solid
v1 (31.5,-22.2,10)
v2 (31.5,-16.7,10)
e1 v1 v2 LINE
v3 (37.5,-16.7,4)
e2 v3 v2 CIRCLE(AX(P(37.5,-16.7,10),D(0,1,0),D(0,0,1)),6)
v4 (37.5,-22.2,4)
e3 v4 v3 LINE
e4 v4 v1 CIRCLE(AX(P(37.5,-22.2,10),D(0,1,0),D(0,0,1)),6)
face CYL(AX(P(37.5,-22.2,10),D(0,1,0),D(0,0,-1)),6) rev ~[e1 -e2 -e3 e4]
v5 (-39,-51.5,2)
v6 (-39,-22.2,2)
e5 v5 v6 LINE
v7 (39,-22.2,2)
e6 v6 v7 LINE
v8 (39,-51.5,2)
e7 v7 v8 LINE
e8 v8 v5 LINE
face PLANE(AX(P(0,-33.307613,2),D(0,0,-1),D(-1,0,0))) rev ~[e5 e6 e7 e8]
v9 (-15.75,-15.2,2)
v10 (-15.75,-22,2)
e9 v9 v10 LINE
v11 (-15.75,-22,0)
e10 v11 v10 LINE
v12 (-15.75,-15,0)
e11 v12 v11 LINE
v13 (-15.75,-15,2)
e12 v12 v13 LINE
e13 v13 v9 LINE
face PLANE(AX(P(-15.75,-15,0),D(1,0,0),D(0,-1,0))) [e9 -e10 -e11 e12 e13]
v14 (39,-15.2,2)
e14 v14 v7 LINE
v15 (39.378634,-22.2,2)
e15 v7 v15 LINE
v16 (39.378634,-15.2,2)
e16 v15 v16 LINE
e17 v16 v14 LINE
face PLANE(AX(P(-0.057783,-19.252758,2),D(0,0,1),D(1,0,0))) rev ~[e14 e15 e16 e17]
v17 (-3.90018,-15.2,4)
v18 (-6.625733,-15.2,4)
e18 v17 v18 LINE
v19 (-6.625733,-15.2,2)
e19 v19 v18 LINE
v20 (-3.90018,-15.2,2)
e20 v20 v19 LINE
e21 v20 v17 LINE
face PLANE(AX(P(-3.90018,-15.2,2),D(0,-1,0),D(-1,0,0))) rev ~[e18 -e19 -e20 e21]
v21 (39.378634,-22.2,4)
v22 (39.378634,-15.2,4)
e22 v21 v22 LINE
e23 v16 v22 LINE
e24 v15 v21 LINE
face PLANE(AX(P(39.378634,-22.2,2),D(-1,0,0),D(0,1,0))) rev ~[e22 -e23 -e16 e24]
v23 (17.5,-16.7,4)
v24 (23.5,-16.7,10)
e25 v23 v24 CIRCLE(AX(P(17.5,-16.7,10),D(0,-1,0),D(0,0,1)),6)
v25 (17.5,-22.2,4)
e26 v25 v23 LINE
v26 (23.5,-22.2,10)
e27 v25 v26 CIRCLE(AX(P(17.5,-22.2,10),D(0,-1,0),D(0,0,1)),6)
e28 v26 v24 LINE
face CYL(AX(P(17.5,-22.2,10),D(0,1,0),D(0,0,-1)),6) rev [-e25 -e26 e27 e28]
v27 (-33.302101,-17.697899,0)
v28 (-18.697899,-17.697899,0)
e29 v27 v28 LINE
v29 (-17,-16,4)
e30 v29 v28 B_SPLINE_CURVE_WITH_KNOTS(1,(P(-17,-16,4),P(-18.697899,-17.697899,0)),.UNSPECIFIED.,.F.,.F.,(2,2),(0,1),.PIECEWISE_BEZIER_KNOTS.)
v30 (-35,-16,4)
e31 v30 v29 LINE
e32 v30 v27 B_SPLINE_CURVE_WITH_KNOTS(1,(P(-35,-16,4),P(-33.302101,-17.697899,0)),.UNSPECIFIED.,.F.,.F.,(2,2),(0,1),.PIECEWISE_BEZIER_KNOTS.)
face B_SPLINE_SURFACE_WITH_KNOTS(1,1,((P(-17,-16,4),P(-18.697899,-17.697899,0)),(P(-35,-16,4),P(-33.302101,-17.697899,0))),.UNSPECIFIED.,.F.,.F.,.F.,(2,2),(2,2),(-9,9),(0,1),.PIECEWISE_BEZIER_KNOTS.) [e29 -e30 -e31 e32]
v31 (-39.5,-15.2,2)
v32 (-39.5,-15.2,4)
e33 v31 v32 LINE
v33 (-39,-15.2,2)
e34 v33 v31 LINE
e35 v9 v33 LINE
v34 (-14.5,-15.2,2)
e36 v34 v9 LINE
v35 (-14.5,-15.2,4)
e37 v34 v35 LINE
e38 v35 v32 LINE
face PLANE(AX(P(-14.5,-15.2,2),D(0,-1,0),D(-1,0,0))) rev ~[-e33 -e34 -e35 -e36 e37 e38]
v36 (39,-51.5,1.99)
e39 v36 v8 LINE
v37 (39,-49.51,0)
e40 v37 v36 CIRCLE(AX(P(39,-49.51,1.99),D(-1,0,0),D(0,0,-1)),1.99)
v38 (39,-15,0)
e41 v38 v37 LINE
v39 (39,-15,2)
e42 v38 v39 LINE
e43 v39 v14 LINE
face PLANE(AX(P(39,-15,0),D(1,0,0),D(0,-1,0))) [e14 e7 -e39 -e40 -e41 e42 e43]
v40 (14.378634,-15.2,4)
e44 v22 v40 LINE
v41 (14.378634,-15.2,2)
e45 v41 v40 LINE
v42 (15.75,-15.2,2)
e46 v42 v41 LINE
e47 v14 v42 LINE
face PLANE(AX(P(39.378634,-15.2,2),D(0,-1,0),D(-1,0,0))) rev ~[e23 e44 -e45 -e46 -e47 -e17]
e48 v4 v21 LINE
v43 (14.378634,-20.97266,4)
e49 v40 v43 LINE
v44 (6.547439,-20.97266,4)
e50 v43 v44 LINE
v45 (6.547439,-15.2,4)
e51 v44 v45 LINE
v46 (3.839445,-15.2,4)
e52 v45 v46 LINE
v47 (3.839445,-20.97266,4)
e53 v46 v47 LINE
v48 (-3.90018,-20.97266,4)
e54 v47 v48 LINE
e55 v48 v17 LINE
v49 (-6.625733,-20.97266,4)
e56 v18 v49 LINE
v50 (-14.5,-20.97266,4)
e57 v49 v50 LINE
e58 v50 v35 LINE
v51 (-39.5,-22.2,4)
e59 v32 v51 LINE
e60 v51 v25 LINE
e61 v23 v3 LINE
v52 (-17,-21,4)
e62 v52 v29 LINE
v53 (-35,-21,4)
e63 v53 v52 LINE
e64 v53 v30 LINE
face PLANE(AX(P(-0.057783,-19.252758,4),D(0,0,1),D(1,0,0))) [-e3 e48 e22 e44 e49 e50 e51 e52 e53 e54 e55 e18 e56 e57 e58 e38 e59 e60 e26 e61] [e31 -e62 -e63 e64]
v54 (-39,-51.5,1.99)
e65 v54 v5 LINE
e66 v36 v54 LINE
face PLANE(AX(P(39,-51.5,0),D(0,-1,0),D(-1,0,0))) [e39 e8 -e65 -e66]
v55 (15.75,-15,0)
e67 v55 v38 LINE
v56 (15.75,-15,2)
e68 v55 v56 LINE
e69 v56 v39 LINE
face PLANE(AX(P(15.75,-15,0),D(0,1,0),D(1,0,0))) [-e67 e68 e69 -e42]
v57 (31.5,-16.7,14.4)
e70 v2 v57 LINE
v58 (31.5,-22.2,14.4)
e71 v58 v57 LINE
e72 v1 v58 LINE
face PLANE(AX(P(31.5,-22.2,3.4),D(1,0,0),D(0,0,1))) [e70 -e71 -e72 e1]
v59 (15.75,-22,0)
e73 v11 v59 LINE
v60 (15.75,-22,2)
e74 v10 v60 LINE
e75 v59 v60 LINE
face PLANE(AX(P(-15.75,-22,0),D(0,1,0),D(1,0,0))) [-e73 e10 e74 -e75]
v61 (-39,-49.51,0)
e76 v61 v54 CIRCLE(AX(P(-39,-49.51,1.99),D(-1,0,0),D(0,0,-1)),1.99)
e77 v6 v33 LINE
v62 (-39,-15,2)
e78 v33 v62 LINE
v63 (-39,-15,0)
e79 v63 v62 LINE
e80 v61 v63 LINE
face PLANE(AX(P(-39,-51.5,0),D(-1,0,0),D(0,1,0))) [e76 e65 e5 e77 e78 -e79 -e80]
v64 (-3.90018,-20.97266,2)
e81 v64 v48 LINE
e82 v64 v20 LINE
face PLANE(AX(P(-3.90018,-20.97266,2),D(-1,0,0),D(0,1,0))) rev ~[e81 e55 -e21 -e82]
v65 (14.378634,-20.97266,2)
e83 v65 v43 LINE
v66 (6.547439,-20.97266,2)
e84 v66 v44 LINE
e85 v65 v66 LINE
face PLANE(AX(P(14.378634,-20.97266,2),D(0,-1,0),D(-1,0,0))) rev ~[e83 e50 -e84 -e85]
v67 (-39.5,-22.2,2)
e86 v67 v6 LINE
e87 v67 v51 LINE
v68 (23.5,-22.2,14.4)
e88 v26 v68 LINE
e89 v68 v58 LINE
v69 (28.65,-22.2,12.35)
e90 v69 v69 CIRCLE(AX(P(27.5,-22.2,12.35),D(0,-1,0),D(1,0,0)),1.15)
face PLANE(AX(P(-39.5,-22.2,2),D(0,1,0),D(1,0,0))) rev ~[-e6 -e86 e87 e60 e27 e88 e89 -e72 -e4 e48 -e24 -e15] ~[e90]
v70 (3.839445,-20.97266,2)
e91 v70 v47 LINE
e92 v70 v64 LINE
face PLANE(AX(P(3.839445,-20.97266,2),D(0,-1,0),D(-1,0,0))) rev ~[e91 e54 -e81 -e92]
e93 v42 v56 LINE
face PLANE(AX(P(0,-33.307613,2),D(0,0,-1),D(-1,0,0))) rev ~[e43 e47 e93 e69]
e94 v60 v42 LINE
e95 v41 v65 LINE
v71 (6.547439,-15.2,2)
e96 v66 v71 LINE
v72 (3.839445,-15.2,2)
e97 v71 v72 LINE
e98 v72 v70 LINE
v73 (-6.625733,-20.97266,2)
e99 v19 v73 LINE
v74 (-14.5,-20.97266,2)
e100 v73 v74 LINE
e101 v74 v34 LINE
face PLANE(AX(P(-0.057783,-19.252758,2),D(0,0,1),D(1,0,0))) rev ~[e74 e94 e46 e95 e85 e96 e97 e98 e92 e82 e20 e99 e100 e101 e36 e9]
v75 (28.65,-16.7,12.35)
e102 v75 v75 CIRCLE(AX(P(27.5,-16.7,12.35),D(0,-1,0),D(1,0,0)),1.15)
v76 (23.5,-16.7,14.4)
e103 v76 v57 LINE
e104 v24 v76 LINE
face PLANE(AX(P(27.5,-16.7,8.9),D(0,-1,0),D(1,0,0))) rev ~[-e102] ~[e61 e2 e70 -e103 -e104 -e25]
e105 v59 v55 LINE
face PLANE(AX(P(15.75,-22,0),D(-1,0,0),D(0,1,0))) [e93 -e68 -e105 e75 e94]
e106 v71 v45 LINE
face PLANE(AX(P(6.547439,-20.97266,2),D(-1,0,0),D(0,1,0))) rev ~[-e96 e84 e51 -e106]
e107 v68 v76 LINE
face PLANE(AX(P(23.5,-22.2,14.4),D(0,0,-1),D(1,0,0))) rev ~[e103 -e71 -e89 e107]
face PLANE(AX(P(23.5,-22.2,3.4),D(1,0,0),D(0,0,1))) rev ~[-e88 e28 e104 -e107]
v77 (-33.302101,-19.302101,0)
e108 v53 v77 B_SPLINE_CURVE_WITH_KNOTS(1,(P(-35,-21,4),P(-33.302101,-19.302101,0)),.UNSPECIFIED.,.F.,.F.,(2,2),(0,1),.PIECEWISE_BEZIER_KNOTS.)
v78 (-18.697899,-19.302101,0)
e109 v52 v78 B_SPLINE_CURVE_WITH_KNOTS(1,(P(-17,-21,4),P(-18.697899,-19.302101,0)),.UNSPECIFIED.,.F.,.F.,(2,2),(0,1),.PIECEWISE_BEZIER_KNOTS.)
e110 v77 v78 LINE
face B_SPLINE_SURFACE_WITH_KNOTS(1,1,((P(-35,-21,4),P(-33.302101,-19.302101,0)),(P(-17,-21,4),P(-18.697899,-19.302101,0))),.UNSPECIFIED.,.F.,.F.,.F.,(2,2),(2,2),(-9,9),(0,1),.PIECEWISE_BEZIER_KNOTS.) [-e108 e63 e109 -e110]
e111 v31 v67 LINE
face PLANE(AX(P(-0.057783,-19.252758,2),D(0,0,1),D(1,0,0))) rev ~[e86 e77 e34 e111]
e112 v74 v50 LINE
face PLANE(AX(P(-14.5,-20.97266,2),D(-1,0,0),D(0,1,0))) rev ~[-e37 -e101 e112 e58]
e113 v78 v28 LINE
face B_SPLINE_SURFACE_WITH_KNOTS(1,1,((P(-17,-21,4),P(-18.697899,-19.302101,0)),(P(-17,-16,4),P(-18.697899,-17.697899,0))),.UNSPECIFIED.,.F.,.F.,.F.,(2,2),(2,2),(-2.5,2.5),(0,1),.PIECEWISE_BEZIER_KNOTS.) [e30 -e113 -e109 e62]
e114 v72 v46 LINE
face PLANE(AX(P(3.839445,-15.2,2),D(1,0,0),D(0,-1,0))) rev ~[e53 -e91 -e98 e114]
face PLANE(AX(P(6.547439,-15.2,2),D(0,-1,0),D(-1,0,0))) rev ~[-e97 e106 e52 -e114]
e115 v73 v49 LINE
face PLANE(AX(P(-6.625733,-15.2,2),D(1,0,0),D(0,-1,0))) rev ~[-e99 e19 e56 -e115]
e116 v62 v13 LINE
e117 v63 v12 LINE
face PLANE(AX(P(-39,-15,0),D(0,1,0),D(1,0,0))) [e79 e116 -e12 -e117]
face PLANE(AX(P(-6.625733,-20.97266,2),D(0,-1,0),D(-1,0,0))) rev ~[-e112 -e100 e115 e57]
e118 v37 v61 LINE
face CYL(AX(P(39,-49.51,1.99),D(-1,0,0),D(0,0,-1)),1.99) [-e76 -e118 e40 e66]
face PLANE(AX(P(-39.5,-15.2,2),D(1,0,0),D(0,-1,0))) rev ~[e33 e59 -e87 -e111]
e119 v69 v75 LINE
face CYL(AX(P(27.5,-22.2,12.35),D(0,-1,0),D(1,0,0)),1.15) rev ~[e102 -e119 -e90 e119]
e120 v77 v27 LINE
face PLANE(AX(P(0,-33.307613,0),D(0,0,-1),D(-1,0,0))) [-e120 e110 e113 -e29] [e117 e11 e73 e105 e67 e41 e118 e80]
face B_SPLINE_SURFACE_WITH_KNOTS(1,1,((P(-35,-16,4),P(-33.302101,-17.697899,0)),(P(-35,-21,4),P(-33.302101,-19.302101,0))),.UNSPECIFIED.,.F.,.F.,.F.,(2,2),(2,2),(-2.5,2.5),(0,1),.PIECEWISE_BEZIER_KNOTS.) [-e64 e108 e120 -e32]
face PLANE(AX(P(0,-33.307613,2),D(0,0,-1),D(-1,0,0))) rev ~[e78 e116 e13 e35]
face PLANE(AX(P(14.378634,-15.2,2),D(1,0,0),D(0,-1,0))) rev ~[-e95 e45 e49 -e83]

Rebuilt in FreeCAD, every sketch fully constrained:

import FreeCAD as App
import Part
import Sketcher
from FreeCAD import Vector
Q = App.Units.Quantity


def edges_at(feature, points):
    """Names of the edges that pass closest to the given points."""
    edges = feature.Shape.Edges
    near = lambda p: min(range(len(edges)), key=lambda i: edges[i].distToShape(Part.Vertex(*p))[0])
    return sorted({f"Edge{near(p) + 1}" for p in points})


def add_polygon(sketch, points):
    """Adds a closed chain of lines whose ends are joined by coincident constraints."""
    first, n = sketch.GeometryCount, len(points)
    for a, b in zip(points, points[1:] + points[:1]):
        sketch.addGeometry(Part.LineSegment(App.Vector(*a, 0), App.Vector(*b, 0)), False)
    for i in range(n):
        sketch.addConstraint(Sketcher.Constraint("Coincident", first + i, 2, first + (i + 1) % n, 1))

doc = App.newDocument("Part")
body = doc.addObject("PartDesign::Body", "Body")

# Sketch on XY plane
sketch1 = doc.addObject("Sketcher::SketchObject", "Sketch")
body.addObject(sketch1)
sketch1.AttachmentSupport = (doc.XY_Plane, [""])
sketch1.MapMode = "FlatFace"
add_polygon(sketch1, [(-16, -15), (-39, -15), (-39, -52), (39, -52), (39, -15), (16, -15), (16, -22), (-16, -22)])  # lines 0-7
sketch1.addConstraint([
    Sketcher.Constraint("Horizontal", 0),
    Sketcher.Constraint("Vertical", 1),
    Sketcher.Constraint("Horizontal", 2),
    Sketcher.Constraint("Vertical", 3),
    Sketcher.Constraint("Horizontal", 4),
    Sketcher.Constraint("Vertical", 5),
    Sketcher.Constraint("Horizontal", 6),
    Sketcher.Constraint("Vertical", 7),
    Sketcher.Constraint("Symmetric", 0, 2, 3, 2, -2),
    Sketcher.Constraint("Equal", 0, 4),
    Sketcher.Constraint("DistanceX", 2, 1, 2, 2, Q("78 mm")),
    Sketcher.Constraint("DistanceY", 5, 2, 5, 1, Q("7 mm")),
    Sketcher.Constraint("DistanceX", 6, 2, 6, 1, Q("31.5 mm")),
    Sketcher.Constraint("DistanceY", 1, 2, 1, 1, Q("36.5 mm")),
    Sketcher.Constraint("DistanceY", 0, 2, -1, 1, Q("15 mm")),
])
pad1 = doc.addObject("PartDesign::Pad", "Pad")
body.addObject(pad1)
pad1.Profile = sketch1
pad1.Length = 2

# Sketch on XY plane
sketch2 = doc.addObject("Sketcher::SketchObject", "Sketch001")
body.addObject(sketch2)
sketch2.AttachmentSupport = (doc.XY_Plane, [""])
sketch2.MapMode = "FlatFace"
sketch2.AttachmentOffset = App.Placement(Vector(0, 0, 2), App.Rotation())
add_polygon(sketch2, [(-14.5, -15.2), (-39.5, -15.2), (-39.5, -22.2), (39.4, -22.2), (39.4, -15.2), (14.4, -15.2), (14.4, -21), (6.5, -21), (6.5, -15.2), (3.8, -15.2), (3.8, -21), (-3.9, -21), (-3.9, -15.2), (-6.6, -15.2), (-6.6, -21), (-14.5, -21)])  # lines 0-15
sketch2.addConstraint([
    Sketcher.Constraint("Horizontal", 0),
    Sketcher.Constraint("Vertical", 1),
    Sketcher.Constraint("Horizontal", 2),
    Sketcher.Constraint("Vertical", 3),
    Sketcher.Constraint("Horizontal", 4),
    Sketcher.Constraint("Vertical", 5),
    Sketcher.Constraint("Horizontal", 6),
    Sketcher.Constraint("Vertical", 7),
    Sketcher.Constraint("Horizontal", 8),
    Sketcher.Constraint("Vertical", 9),
    Sketcher.Constraint("Horizontal", 10),
    Sketcher.Constraint("Vertical", 11),
    Sketcher.Constraint("Horizontal", 12),
    Sketcher.Constraint("Vertical", 13),
    Sketcher.Constraint("Horizontal", 14),
    Sketcher.Constraint("Vertical", 15),
    Sketcher.Constraint("Horizontal", 0, 2, 3, 2),
    Sketcher.Constraint("Horizontal", 4, 2, 7, 2),
    Sketcher.Constraint("Horizontal", 6, 2, 9, 2),
    Sketcher.Constraint("Horizontal", 8, 2, 11, 2),
    Sketcher.Constraint("Horizontal", 10, 2, 13, 2),
    Sketcher.Constraint("Equal", 0, 4),
    Sketcher.Constraint("DistanceX", 0, 2, 0, 1, Q("25 mm")),
    Sketcher.Constraint("DistanceY", 1, 2, 1, 1, Q("7 mm")),
    Sketcher.Constraint("DistanceX", 0, 2, -1, 1, Q("39.5 mm")),
    Sketcher.Constraint("DistanceY", 0, 2, -1, 1, Q("15.2 mm")),
    Sketcher.Constraint("DistanceY", 5, 2, 5, 1, Q("5.77266 mm")),
    Sketcher.Constraint("DistanceX", 2, 1, 2, 2, Q("78.878634 mm")),
    Sketcher.Constraint("DistanceX", 6, 2, 6, 1, Q("7.831195 mm")),
    Sketcher.Constraint("DistanceX", 8, 2, 8, 1, Q("2.707994 mm")),
    Sketcher.Constraint("DistanceX", 10, 2, 10, 1, Q("7.739625 mm")),
    Sketcher.Constraint("DistanceX", 12, 2, 12, 1, Q("2.725553 mm")),
])
pad2 = doc.addObject("PartDesign::Pad", "Pad001")
body.addObject(pad2)
pad2.Profile = sketch2
pad2.Length = 2

# Sketch on XZ plane
sketch3 = doc.addObject("Sketcher::SketchObject", "Sketch002")
body.addObject(sketch3)
sketch3.AttachmentSupport = (doc.XZ_Plane, [""])
sketch3.MapMode = "FlatFace"
sketch3.AttachmentOffset = App.Placement(Vector(0, 0, 22.2), App.Rotation())
add_polygon(sketch3, [(23.5, 14.4), (23.5, 3.4), (31.5, 3.4), (31.5, 14.4)])  # lines 0-3
sketch3.addGeometry(Part.Circle(Vector(27.5, 12.3, 0), Vector(0, 0, 1), 1.1), False)  # 4
sketch3.addConstraint([
    Sketcher.Constraint("Vertical", 0),
    Sketcher.Constraint("Horizontal", 1),
    Sketcher.Constraint("Vertical", 2),
    Sketcher.Constraint("Horizontal", 3),
    Sketcher.Constraint("Diameter", 4, Q("2.3 mm")),
    Sketcher.Constraint("DistanceX", 1, 1, 1, 2, Q("8 mm")),
    Sketcher.Constraint("DistanceY", 0, 2, 0, 1, Q("11 mm")),
    Sketcher.Constraint("DistanceX", 0, 2, 4, 3, Q("4 mm")),
    Sketcher.Constraint("DistanceX", -1, 1, 4, 3, Q("27.5 mm")),
    Sketcher.Constraint("DistanceY", -1, 1, 0, 2, Q("3.4 mm")),
    Sketcher.Constraint("DistanceY", -1, 1, 4, 3, Q("12.35 mm")),
])
pad3 = doc.addObject("PartDesign::Pad", "Pad002")
body.addObject(pad3)
pad3.Profile = sketch3
pad3.Length = 5.5
pad3.Reversed = True
doc.recompute()

fillet = doc.addObject("PartDesign::Fillet", "Fillet")
body.addObject(fillet)
fillet.Base = (pad3, edges_at(pad3, [(23.5, -19.45, 4), (31.5, -19.45, 4)]))
fillet.Radius = 6
doc.recompute()

fillet2 = doc.addObject("PartDesign::Fillet", "Fillet001")
body.addObject(fillet2)
fillet2.Base = (fillet, edges_at(fillet, [(0, -51.5, 0)]))
fillet2.Radius = 1.99

# Sketch on XY plane
sketch4 = doc.addObject("Sketcher::SketchObject", "Sketch003")
body.addObject(sketch4)
sketch4.AttachmentSupport = (doc.XY_Plane, [""])
sketch4.MapMode = "FlatFace"
sketch4.AttachmentOffset = App.Placement(Vector(0, 0, 4), App.Rotation())
add_polygon(sketch4, [(-35, -16), (-35, -21), (-17, -21), (-17, -16)])  # lines 0-3
sketch4.addConstraint([
    Sketcher.Constraint("Vertical", 0),
    Sketcher.Constraint("Horizontal", 1),
    Sketcher.Constraint("Vertical", 2),
    Sketcher.Constraint("Horizontal", 3),
    Sketcher.Constraint("DistanceX", 1, 1, 1, 2, Q("18 mm")),
    Sketcher.Constraint("DistanceY", 0, 2, 0, 1, Q("5 mm")),
    Sketcher.Constraint("DistanceX", 0, 2, -1, 1, Q("35 mm")),
    Sketcher.Constraint("DistanceY", 0, 2, -1, 1, Q("21 mm")),
])
pocket1 = doc.addObject("PartDesign::Pocket", "Pocket")
body.addObject(pocket1)
pocket1.Profile = sketch4
pocket1.Length = 4
pocket1.TaperAngle = -23

doc.recompute()
